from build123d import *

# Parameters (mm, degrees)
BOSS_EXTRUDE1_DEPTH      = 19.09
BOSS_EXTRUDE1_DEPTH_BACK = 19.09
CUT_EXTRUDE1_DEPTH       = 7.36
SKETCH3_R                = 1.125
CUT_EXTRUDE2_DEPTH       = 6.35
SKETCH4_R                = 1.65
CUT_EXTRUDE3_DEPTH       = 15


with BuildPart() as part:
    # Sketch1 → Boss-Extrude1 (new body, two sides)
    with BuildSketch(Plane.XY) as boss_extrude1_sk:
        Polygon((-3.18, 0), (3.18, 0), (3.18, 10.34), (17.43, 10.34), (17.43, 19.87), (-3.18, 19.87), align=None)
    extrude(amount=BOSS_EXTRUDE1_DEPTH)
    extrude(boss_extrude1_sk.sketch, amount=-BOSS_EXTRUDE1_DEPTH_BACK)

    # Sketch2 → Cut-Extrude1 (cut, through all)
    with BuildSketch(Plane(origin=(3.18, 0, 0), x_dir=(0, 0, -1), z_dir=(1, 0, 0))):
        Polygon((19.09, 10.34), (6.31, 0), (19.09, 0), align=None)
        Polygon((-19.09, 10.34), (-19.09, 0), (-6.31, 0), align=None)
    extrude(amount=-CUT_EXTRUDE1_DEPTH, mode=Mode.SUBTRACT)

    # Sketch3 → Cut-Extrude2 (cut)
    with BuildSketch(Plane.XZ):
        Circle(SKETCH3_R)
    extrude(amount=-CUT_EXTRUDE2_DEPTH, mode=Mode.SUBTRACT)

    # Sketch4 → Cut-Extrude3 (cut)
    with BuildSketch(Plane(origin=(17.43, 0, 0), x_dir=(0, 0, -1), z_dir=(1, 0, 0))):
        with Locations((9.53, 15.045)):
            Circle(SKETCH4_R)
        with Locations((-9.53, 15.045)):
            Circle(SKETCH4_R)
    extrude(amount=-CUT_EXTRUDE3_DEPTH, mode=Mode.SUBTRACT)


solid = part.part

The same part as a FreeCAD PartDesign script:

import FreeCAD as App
import Part
import Sketcher

V = App.Vector

doc = App.newDocument("Part")
body = doc.addObject("PartDesign::Body", "Body")

sketch1 = body.newObject("Sketcher::SketchObject", "Sketch")
sketch1.AttachmentSupport = (doc.getObject("XY_Plane"), [""])
sketch1.MapMode = "FlatFace"
sketch1.addGeometry(Part.LineSegment(V(-3, 0, 0), V(3, 0, 0)), False)
sketch1.addGeometry(Part.LineSegment(V(3, 0, 0), V(3, 10, 0)), False)
sketch1.addGeometry(Part.LineSegment(V(3, 10, 0), V(17, 10, 0)), False)
sketch1.addGeometry(Part.LineSegment(V(17, 10, 0), V(17, 20, 0)), False)
sketch1.addGeometry(Part.LineSegment(V(17, 20, 0), V(-3, 20, 0)), False)
sketch1.addGeometry(Part.LineSegment(V(-3, 20, 0), V(-3, 0, 0)), False)
sketch1.addConstraint(Sketcher.Constraint("Coincident", 0, 2, 1, 1))
sketch1.addConstraint(Sketcher.Constraint("Coincident", 1, 2, 2, 1))
sketch1.addConstraint(Sketcher.Constraint("Coincident", 2, 2, 3, 1))
sketch1.addConstraint(Sketcher.Constraint("Coincident", 3, 2, 4, 1))
sketch1.addConstraint(Sketcher.Constraint("Coincident", 4, 2, 5, 1))
sketch1.addConstraint(Sketcher.Constraint("Coincident", 5, 2, 0, 1))
sketch1.addConstraint(Sketcher.Constraint("Horizontal", 0))
sketch1.addConstraint(Sketcher.Constraint("Vertical", 1))
sketch1.addConstraint(Sketcher.Constraint("Horizontal", 2))
sketch1.addConstraint(Sketcher.Constraint("Vertical", 3))
sketch1.addConstraint(Sketcher.Constraint("Horizontal", 4))
sketch1.addConstraint(Sketcher.Constraint("Vertical", 5))
sketch1.addConstraint(Sketcher.Constraint("Symmetric", 0, 2, 5, 2, -1, 1))
sketch1.addConstraint(Sketcher.Constraint("DistanceX", 0, 1, 0, 2, 6.36))
sketch1.addConstraint(Sketcher.Constraint("DistanceX", 2, 1, 2, 2, 14.25))
sketch1.addConstraint(Sketcher.Constraint("DistanceY", 1, 1, 1, 2, 10.34))
sketch1.addConstraint(Sketcher.Constraint("DistanceY", 3, 1, 3, 2, 9.53))
pad1 = body.newObject("PartDesign::Pad", "Pad")
pad1.Profile = sketch1
pad1.Type = "TwoLengths"
pad1.Length = 19.09
pad1.Length2 = 19.09

sketch2 = body.newObject("Sketcher::SketchObject", "Sketch001")
sketch2.AttachmentSupport = (doc.getObject("YZ_Plane"), [""])
sketch2.MapMode = "FlatFace"
sketch2.AttachmentOffset = App.Placement(V(0, 0, 3.18), App.Rotation())
sketch2.addGeometry(Part.LineSegment(V(10, -19, 0), V(0, -6, 0)), False)
sketch2.addGeometry(Part.LineSegment(V(0, -6, 0), V(0, -19, 0)), False)
sketch2.addGeometry(Part.LineSegment(V(0, -19, 0), V(10, -19, 0)), False)
sketch2.addGeometry(Part.LineSegment(V(10, 19, 0), V(0, 19, 0)), False)
sketch2.addGeometry(Part.LineSegment(V(0, 19, 0), V(0, 6, 0)), False)
sketch2.addGeometry(Part.LineSegment(V(0, 6, 0), V(10, 19, 0)), False)
sketch2.addConstraint(Sketcher.Constraint("Coincident", 0, 2, 1, 1))
sketch2.addConstraint(Sketcher.Constraint("Coincident", 1, 2, 2, 1))
sketch2.addConstraint(Sketcher.Constraint("Coincident", 2, 2, 0, 1))
sketch2.addConstraint(Sketcher.Constraint("Coincident", 3, 2, 4, 1))
sketch2.addConstraint(Sketcher.Constraint("Coincident", 4, 2, 5, 1))
sketch2.addConstraint(Sketcher.Constraint("Coincident", 5, 2, 3, 1))
sketch2.addConstraint(Sketcher.Constraint("Vertical", 1))
sketch2.addConstraint(Sketcher.Constraint("Horizontal", 2))
sketch2.addConstraint(Sketcher.Constraint("Horizontal", 3))
sketch2.addConstraint(Sketcher.Constraint("Vertical", 4))
sketch2.addConstraint(Sketcher.Constraint("Symmetric", 1, 2, 3, 2, -1, 1))
sketch2.addConstraint(Sketcher.Constraint("Symmetric", 0, 2, 4, 2, -1))
sketch2.addConstraint(Sketcher.Constraint("Vertical", 2, 2, 5, 2))
sketch2.addConstraint(Sketcher.Constraint("DistanceX", 2, 1, 2, 2, 10.34))
sketch2.addConstraint(Sketcher.Constraint("DistanceY", 1, 2, 1, 1, 12.78))
sketch2.addConstraint(Sketcher.Constraint("DistanceY", 0, 2, 3, 2, 25.4))
pocket1 = body.newObject("PartDesign::Pocket", "Pocket")
pocket1.Profile = sketch2
pocket1.Type = "ThroughAll"

sketch3 = body.newObject("Sketcher::SketchObject", "Sketch002")
sketch3.AttachmentSupport = (doc.getObject("XZ_Plane"), [""])
sketch3.MapMode = "FlatFace"
sketch3.addGeometry(Part.Circle(V(0, 0, 0), V(0, 0, 1), 1.1), False)
sketch3.addConstraint(Sketcher.Constraint("Coincident", 0, 3, -1, 1))
sketch3.addConstraint(Sketcher.Constraint("Diameter", 0, 2.25))
pocket2 = body.newObject("PartDesign::Pocket", "Pocket001")
pocket2.Profile = sketch3
pocket2.Length = 6.35

sketch4 = body.newObject("Sketcher::SketchObject", "Sketch003")
sketch4.AttachmentSupport = (doc.getObject("YZ_Plane"), [""])
sketch4.MapMode = "FlatFace"
sketch4.AttachmentOffset = App.Placement(V(0, 0, 17.43), App.Rotation())
sketch4.addGeometry(Part.Circle(V(15, -9.5, 0), V(0, 0, 1), 1.6), False)
sketch4.addGeometry(Part.Circle(V(15, 9.5, 0), V(0, 0, 1), 1.6), False)
sketch4.addConstraint(Sketcher.Constraint("Equal", 0, 1))
sketch4.addConstraint(Sketcher.Constraint("Symmetric", 0, 3, 1, 3, -1))
sketch4.addConstraint(Sketcher.Constraint("Diameter", 0, 3.3))
sketch4.addConstraint(Sketcher.Constraint("DistanceY", 0, 3, -1, 1, 9.53))
sketch4.addConstraint(Sketcher.Constraint("DistanceX", -1, 1, 0, 3, 15.045))
pocket3 = body.newObject("PartDesign::Pocket", "Pocket002")
pocket3.Profile = sketch4
pocket3.Length = 15

doc.recompute()
